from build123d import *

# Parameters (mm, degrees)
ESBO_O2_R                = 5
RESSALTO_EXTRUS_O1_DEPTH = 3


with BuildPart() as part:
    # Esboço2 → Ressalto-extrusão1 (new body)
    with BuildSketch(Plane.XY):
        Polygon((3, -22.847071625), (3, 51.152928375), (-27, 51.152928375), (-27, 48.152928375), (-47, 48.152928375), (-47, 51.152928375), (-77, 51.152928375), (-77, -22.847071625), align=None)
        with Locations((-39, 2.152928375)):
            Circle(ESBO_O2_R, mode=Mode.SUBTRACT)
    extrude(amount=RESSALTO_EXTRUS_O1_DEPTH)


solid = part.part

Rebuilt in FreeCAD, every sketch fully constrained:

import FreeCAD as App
import Part
import Sketcher

V = App.Vector


def add_polygon(sketch, points):
    """Adds a closed chain of lines whose ends are joined by coincident constraints."""
    first, n = sketch.GeometryCount, len(points)
    for a, b in zip(points, points[1:] + points[:1]):
        sketch.addGeometry(Part.LineSegment(App.Vector(*a, 0), App.Vector(*b, 0)), False)
    for i in range(n):
        sketch.addConstraint(Sketcher.Constraint("Coincident", first + i, 2, first + (i + 1) % n, 1))

doc = App.newDocument("Part")
body = doc.addObject("PartDesign::Body", "Body")

# Sketch on XY plane
sketch1 = body.newObject("Sketcher::SketchObject", "Sketch")
sketch1.AttachmentSupport = (doc.getObject("XY_Plane"), [""])
sketch1.MapMode = "FlatFace"
add_polygon(sketch1, [(3, -22.8), (3, 51.2), (-27, 51.2), (-27, 48.2), (-47, 48.2), (-47, 51.2), (-77, 51.2), (-77, -22.8)])  # lines 0-7
sketch1.addGeometry(Part.Circle(V(-39, 2.2, 0), V(0, 0, 1), 5), False)  # 8
sketch1.addConstraint(Sketcher.Constraint("Vertical", 0))
sketch1.addConstraint(Sketcher.Constraint("Horizontal", 1))
sketch1.addConstraint(Sketcher.Constraint("Vertical", 2))
sketch1.addConstraint(Sketcher.Constraint("Horizontal", 3))
sketch1.addConstraint(Sketcher.Constraint("Vertical", 4))
sketch1.addConstraint(Sketcher.Constraint("Horizontal", 5))
sketch1.addConstraint(Sketcher.Constraint("Vertical", 6))
sketch1.addConstraint(Sketcher.Constraint("Horizontal", 7))
sketch1.addConstraint(Sketcher.Constraint("Horizontal", 1, 2, 4, 2))
sketch1.addConstraint(Sketcher.Constraint("Equal", 1, 5))
sketch1.addConstraint(Sketcher.Constraint("Diameter", 8, 10.0))
sketch1.addConstraint(Sketcher.Constraint("DistanceX", 1, 2, 1, 1, 30.0))
sketch1.addConstraint(Sketcher.Constraint("DistanceX", 3, 2, 3, 1, 20.0))
sketch1.addConstraint(Sketcher.Constraint("DistanceY", 0, 1, 0, 2, 74.0))
sketch1.addConstraint(Sketcher.Constraint("DistanceY", 2, 2, 2, 1, 3.0))
sketch1.addConstraint(Sketcher.Constraint("DistanceX", 8, 3, -1, 1, 39.0))
sketch1.addConstraint(Sketcher.Constraint("DistanceX", -1, 1, 0, 2, 3.0))
sketch1.addConstraint(Sketcher.Constraint("DistanceY", 8, 3, 0, 2, 49.0))
sketch1.addConstraint(Sketcher.Constraint("DistanceY", -1, 1, 8, 3, 2.152928))
pad1 = body.newObject("PartDesign::Pad", "Pad")
pad1.Profile = sketch1
pad1.Length = 3

doc.recompute()
